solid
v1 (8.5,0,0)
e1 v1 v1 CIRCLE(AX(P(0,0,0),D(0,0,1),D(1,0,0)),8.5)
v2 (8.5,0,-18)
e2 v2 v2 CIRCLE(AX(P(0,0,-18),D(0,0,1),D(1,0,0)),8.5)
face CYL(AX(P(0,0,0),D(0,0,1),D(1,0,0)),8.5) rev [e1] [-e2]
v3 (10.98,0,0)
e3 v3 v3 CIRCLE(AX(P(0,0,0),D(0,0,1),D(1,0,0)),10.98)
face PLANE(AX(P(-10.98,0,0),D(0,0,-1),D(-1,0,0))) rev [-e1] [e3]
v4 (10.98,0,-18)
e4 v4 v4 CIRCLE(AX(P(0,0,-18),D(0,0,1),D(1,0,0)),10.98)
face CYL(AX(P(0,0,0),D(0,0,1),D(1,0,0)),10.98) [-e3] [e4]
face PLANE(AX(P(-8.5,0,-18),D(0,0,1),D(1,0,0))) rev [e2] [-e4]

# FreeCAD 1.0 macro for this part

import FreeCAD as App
import Part
import Sketcher
from FreeCAD import Vector

doc = App.newDocument("Part")
body = doc.addObject("PartDesign::Body", "Body")

sketch1 = doc.addObject("Sketcher::SketchObject", "Sketch")
body.addObject(sketch1)
sketch1.AttachmentSupport = (doc.XZ_Plane, [""])
sketch1.MapMode = "FlatFace"
sketch1.addGeometry([
    Part.LineSegment(Vector(-11, -18, 0), Vector(-11, 0, 0)),
    Part.LineSegment(Vector(-11, 0, 0), Vector(-8.5, 0, 0)),
    Part.LineSegment(Vector(-8.5, 0, 0), Vector(-8.5, -18, 0)),
    Part.LineSegment(Vector(-8.5, -18, 0), Vector(-11, -18, 0)),
], False)
sketch1.addConstraint([
    Sketcher.Constraint("Coincident", 0, 2, 1, 1),
    Sketcher.Constraint("Coincident", 1, 2, 2, 1),
    Sketcher.Constraint("Coincident", 2, 2, 3, 1),
    Sketcher.Constraint("Coincident", 3, 2, 0, 1),
    Sketcher.Constraint("Vertical", 0),
    Sketcher.Constraint("Horizontal", 1),
    Sketcher.Constraint("Vertical", 2),
    Sketcher.Constraint("Horizontal", 3),
    Sketcher.Constraint("PointOnObject", 0, 2, -1),
    Sketcher.Constraint("DistanceY", 0, 1, 0, 2, 18.0),
    Sketcher.Constraint("DistanceX", 1, 1, 1, 2, 2.48),
    Sketcher.Constraint("DistanceX", 1, 2, -1, 1, 8.5),
])
revolution = doc.addObject("PartDesign::Revolution", "Revolution")
body.addObject(revolution)
revolution.Profile = sketch1
revolution.ReferenceAxis = (sketch1, ["V_Axis"])
revolution.Angle = 360

doc.recompute()
